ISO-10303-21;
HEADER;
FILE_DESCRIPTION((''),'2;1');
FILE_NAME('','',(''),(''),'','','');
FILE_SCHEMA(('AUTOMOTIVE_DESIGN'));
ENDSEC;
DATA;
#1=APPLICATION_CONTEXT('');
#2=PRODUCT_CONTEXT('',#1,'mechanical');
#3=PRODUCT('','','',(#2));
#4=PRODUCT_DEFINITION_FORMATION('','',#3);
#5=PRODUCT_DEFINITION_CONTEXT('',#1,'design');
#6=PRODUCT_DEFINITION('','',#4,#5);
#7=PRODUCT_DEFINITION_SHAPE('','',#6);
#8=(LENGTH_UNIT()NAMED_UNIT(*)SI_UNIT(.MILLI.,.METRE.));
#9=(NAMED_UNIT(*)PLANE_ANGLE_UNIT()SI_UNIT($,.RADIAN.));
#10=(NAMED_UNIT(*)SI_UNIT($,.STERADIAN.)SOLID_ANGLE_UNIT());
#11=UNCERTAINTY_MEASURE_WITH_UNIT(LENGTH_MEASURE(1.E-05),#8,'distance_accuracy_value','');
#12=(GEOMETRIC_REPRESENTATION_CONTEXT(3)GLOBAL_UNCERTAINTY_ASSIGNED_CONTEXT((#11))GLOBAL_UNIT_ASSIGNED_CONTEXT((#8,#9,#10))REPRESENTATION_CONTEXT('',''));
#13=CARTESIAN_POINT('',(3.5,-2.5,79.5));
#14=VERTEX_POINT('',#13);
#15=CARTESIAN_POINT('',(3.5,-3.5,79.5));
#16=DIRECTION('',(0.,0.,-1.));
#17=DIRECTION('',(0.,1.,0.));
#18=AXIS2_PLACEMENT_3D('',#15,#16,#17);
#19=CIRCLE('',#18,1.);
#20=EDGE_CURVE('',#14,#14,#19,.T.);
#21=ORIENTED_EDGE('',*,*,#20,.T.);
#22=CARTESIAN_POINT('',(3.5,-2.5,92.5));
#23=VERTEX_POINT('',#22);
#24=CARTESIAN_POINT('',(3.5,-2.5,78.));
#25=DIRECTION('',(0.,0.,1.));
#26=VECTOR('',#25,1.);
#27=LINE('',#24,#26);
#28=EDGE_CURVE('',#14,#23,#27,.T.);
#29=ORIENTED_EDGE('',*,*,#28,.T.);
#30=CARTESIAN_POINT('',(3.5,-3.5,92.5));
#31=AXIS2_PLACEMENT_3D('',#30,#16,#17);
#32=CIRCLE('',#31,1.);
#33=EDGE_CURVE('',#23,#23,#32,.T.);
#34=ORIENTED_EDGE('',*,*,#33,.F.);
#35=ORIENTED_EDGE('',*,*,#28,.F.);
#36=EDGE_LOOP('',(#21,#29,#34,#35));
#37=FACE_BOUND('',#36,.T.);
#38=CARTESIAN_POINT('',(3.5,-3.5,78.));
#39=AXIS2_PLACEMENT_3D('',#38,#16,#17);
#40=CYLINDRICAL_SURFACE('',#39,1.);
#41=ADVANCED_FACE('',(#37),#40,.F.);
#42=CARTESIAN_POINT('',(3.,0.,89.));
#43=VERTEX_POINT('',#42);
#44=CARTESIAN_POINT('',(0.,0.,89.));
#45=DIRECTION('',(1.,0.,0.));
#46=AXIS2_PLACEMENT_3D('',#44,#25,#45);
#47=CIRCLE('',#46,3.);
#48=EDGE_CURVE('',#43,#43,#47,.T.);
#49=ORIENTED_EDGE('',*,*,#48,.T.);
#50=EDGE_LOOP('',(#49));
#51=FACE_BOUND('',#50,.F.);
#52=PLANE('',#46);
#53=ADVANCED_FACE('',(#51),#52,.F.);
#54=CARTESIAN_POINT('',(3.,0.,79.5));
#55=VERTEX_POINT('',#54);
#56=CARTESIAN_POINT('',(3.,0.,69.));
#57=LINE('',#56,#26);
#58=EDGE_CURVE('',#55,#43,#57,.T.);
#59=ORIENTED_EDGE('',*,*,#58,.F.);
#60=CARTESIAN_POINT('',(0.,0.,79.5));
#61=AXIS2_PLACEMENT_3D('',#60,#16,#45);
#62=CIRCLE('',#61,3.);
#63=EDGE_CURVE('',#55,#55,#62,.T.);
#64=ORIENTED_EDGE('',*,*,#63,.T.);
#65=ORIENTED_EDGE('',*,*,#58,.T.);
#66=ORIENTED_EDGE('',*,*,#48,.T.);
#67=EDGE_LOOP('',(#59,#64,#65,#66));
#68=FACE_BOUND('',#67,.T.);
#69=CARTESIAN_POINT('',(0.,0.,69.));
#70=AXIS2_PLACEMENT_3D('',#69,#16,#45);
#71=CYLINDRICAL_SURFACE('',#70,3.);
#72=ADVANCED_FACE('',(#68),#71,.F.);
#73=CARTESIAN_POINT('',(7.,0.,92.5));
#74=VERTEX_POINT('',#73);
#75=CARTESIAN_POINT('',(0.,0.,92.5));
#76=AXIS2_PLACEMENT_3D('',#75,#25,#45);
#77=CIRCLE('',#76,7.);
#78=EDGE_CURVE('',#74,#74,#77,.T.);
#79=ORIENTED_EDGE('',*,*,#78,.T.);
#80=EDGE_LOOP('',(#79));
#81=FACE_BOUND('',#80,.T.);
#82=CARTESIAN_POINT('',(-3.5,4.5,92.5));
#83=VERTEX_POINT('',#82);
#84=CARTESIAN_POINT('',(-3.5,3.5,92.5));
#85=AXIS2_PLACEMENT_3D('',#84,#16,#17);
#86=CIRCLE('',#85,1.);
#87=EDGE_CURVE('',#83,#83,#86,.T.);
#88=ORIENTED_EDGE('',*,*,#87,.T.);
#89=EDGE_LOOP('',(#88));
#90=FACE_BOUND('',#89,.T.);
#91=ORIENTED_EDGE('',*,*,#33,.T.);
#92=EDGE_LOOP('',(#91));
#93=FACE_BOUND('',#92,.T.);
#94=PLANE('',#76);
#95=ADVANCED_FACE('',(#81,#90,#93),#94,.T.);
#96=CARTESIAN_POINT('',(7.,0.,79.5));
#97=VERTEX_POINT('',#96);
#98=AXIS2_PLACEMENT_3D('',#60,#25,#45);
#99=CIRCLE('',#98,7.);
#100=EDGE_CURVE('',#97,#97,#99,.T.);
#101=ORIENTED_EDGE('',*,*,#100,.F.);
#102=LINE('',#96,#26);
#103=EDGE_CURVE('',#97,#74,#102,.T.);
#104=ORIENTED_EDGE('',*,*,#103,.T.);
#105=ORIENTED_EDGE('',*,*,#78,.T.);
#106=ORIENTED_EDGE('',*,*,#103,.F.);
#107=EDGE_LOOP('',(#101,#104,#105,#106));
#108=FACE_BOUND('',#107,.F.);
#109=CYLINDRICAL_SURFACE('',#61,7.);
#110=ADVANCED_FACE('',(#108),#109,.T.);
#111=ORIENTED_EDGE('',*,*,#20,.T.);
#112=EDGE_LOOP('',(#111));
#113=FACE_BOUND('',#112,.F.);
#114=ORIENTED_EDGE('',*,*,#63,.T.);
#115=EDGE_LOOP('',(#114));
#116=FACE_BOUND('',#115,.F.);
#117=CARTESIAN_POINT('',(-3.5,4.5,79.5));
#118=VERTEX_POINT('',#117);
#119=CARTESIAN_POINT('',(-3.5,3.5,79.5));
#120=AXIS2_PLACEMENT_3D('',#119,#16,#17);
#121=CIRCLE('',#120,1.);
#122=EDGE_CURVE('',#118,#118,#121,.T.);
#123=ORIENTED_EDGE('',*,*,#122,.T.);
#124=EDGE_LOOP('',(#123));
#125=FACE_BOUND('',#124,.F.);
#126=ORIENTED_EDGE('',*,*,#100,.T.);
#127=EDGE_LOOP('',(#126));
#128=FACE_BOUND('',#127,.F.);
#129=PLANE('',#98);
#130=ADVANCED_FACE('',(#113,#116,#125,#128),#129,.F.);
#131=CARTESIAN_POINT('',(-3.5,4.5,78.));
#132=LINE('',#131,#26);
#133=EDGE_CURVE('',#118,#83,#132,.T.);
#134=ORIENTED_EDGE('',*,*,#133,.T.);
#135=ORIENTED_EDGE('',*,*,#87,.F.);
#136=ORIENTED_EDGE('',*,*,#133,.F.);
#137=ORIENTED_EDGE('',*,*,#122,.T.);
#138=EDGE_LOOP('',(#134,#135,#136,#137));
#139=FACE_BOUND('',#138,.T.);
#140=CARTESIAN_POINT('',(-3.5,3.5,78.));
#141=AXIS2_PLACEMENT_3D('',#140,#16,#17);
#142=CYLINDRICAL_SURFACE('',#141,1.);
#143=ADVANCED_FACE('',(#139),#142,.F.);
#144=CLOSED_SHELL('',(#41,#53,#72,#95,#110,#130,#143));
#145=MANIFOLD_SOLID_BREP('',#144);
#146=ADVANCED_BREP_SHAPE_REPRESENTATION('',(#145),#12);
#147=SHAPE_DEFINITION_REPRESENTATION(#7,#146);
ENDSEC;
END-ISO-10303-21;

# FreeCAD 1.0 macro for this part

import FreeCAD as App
import Part
import Sketcher
from FreeCAD import Vector
Q = App.Units.Quantity

doc = App.newDocument("Part")
params = doc.addObject("Spreadsheet::Sheet", "Params")
for row, (alias, value) in enumerate([
    ("sketch1_diameter", "6 mm"),
    ("pad1_length", "20 mm"),
    ("sketch2_diameter", "2 mm"),
    ("pad2_length", "20 mm"),
    ("sketch3_diameter", "2 mm"),
    ("pad3_length", "20 mm"),
    ("sketch4_diameter", "14 mm"),
    ("pad4_length", "13 mm"),
], start=1):
    params.set(f"A{row}", alias)
    params.set(f"B{row}", "=" + value)
    params.setAlias(f"B{row}", alias)

body = doc.addObject("PartDesign::Body", "Body")

sketch1 = doc.addObject("Sketcher::SketchObject", "Sketch")
body.addObject(sketch1)
sketch1.AttachmentSupport = (doc.XY_Plane, [""])
sketch1.MapMode = "FlatFace"
sketch1.AttachmentOffset = App.Placement(Vector(0, 0, 69), App.Rotation())
sketch1.addGeometry(Part.Circle(Vector(0, 0, 0), Vector(0, 0, 1), 3), False)
sketch1.addConstraint(Sketcher.Constraint("Coincident", 0, 3, -1, 1))
sketch1.addConstraint(Sketcher.Constraint("Diameter", 0, Q("6 mm")))
sketch1.setExpression("Constraints[1]", "Params.sketch1_diameter")
pad1 = doc.addObject("PartDesign::Pad", "Pad")
body.addObject(pad1)
pad1.Profile = sketch1
pad1.setExpression("Length", "Params.pad1_length")
body2 = doc.addObject("PartDesign::Body", "Body001")

sketch2 = doc.addObject("Sketcher::SketchObject", "Sketch001")
body2.addObject(sketch2)
sketch2.AttachmentSupport = (doc.getObject("XY_Plane001"), [""])
sketch2.MapMode = "FlatFace"
sketch2.addGeometry(Part.Circle(Vector(-3.5, -3.5, 0), Vector(0, 0, 1), 1), False)
sketch2.addConstraint(Sketcher.Constraint("Diameter", 0, Q("2 mm")))
sketch2.addConstraint(Sketcher.Constraint("DistanceX", 0, 3, -1, 1, Q("3.5 mm")))
sketch2.addConstraint(Sketcher.Constraint("DistanceY", 0, 3, -1, 1, Q("3.5 mm")))
sketch2.setExpression("Constraints[0]", "Params.sketch2_diameter")
pad2 = doc.addObject("PartDesign::Pad", "Pad001")
body2.addObject(pad2)
pad2.Profile = sketch2
pad2.setExpression("Length", "Params.pad2_length")
body3 = doc.addObject("PartDesign::Body", "Body002")
body3.AllowCompound = True

sketch3 = doc.addObject("Sketcher::SketchObject", "Sketch002")
body3.addObject(sketch3)
sketch3.AttachmentSupport = (doc.getObject("XY_Plane002"), [""])
sketch3.MapMode = "FlatFace"
sketch3.addGeometry(Part.Circle(Vector(3.5, 3.5, 0), Vector(0, 0, 1), 1), False)
sketch3.addConstraint(Sketcher.Constraint("Diameter", 0, Q("2 mm")))
sketch3.addConstraint(Sketcher.Constraint("DistanceX", -1, 1, 0, 3, Q("3.5 mm")))
sketch3.addConstraint(Sketcher.Constraint("DistanceY", -1, 1, 0, 3, Q("3.5 mm")))
sketch3.setExpression("Constraints[0]", "Params.sketch3_diameter")
pad3 = doc.addObject("PartDesign::Pad", "Pad002")
body3.addObject(pad3)
pad3.Profile = sketch3
pad3.setExpression("Length", "Params.pad3_length")
doc.recompute()

boolean = doc.addObject("PartDesign::Boolean", "Boolean")
body3.addObject(boolean)
boolean.Type = "Fuse"
boolean.addObjects([body2])
body4 = doc.addObject("PartDesign::Body", "Body003")
body4.AllowCompound = True
doc.recompute()

body3.Placement = App.Placement(Vector(0, 0, 78), App.Rotation(Vector(0, 0, 1), 90))
boolean2 = doc.addObject("PartDesign::Boolean", "Boolean001")
body4.addObject(boolean2)
boolean2.Type = "Fuse"
boolean2.addObjects([body3])
body5 = doc.addObject("PartDesign::Body", "Body004")

sketch4 = doc.addObject("Sketcher::SketchObject", "Sketch003")
body5.addObject(sketch4)
sketch4.AttachmentSupport = (doc.getObject("XY_Plane004"), [""])
sketch4.MapMode = "FlatFace"
sketch4.AttachmentOffset = App.Placement(Vector(0, 0, -27.5), App.Rotation())
sketch4.addGeometry(Part.Circle(Vector(0, 0, 0), Vector(0, 0, 1), 7), False)
sketch4.addConstraint(Sketcher.Constraint("Coincident", 0, 3, -1, 1))
sketch4.addConstraint(Sketcher.Constraint("Diameter", 0, Q("14 mm")))
sketch4.setExpression("Constraints[1]", "Params.sketch4_diameter")
pad4 = doc.addObject("PartDesign::Pad", "Pad003")
body5.addObject(pad4)
pad4.Profile = sketch4
pad4.setExpression("Length", "Params.pad4_length")
body6 = doc.addObject("PartDesign::Body", "Body005")
doc.recompute()

body5.Placement = App.Placement(Vector(0, 0, 107), App.Rotation(Vector(0, 0, 1), 0))
boolean3 = doc.addObject("PartDesign::Boolean", "Boolean002")
body6.addObject(boolean3)
boolean3.Type = "Fuse"
boolean3.addObjects([body5])
doc.recompute()

boolean4 = doc.addObject("PartDesign::Boolean", "Boolean003")
body6.addObject(boolean4)
boolean4.Type = "Cut"
boolean4.addObjects([body4])
doc.recompute()

boolean5 = doc.addObject("PartDesign::Boolean", "Boolean004")
body6.addObject(boolean5)
boolean5.Type = "Cut"
boolean5.addObjects([body])

doc.recompute()
